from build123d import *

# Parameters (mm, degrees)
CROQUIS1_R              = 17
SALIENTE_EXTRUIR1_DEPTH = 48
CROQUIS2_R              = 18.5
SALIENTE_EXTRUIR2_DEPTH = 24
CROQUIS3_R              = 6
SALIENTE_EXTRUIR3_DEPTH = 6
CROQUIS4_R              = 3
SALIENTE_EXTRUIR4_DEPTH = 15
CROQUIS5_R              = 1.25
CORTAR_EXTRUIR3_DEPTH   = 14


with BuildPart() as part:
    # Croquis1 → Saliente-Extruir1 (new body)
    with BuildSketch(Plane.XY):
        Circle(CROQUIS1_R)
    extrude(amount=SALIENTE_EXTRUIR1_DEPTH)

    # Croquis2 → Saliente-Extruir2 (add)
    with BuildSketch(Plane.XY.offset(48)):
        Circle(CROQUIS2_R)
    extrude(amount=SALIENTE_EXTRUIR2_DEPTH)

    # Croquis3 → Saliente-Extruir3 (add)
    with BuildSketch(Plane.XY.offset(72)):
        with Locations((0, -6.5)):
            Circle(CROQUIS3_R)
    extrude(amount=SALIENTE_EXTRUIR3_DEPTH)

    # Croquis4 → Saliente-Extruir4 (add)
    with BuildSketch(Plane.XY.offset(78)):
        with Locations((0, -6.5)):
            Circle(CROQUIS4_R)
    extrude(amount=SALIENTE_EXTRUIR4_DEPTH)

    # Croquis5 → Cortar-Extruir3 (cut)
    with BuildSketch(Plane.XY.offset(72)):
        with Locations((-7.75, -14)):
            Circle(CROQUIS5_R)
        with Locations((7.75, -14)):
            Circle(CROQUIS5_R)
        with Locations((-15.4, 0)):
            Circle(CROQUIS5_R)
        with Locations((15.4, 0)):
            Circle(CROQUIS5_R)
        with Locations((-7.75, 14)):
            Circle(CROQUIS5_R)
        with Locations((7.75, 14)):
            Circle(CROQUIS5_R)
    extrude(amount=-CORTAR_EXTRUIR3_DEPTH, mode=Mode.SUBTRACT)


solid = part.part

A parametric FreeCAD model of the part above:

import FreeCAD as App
import Part
import Sketcher

V = App.Vector
Q = App.Units.Quantity

doc = App.newDocument("Part")
params = doc.addObject("Spreadsheet::Sheet", "Params")
for row, (alias, value) in enumerate([
    ("sketch1_diameter", "34 mm"),
    ("pad1_length", "48 mm"),
    ("sketch2_diameter", "37 mm"),
    ("pad2_length", "24 mm"),
    ("sketch3_diameter", "12 mm"),
    ("pad3_length", "6 mm"),
    ("sketch4_diameter", "6 mm"),
    ("pad4_length", "15 mm"),
    ("sketch5_diameter", "2.5 mm"),
    ("pocket1_length", "14 mm"),
], start=1):
    params.set(f"A{row}", alias)
    params.set(f"B{row}", "=" + value)
    params.setAlias(f"B{row}", alias)

body = doc.addObject("PartDesign::Body", "Body")

sketch1 = doc.addObject("Sketcher::SketchObject", "Sketch")
body.addObject(sketch1)
sketch1.AttachmentSupport = (doc.XY_Plane, [""])
sketch1.MapMode = "FlatFace"
sketch1.addGeometry(Part.Circle(V(0, 0, 0), V(0, 0, 1), 17), False)
sketch1.addConstraint(Sketcher.Constraint("Coincident", 0, 3, -1, 1))
sketch1.addConstraint(Sketcher.Constraint("Diameter", 0, Q("34 mm")))
sketch1.setExpression("Constraints[1]", "Params.sketch1_diameter")
pad1 = doc.addObject("PartDesign::Pad", "Pad")
body.addObject(pad1)
pad1.Profile = sketch1
pad1.setExpression("Length", "Params.pad1_length")

sketch2 = doc.addObject("Sketcher::SketchObject", "Sketch001")
body.addObject(sketch2)
sketch2.AttachmentSupport = (doc.XY_Plane, [""])
sketch2.MapMode = "FlatFace"
sketch2.AttachmentOffset = App.Placement(V(0, 0, 48), App.Rotation())
sketch2.addGeometry(Part.Circle(V(0, 0, 0), V(0, 0, 1), 18), False)
sketch2.addConstraint(Sketcher.Constraint("Coincident", 0, 3, -1, 1))
sketch2.addConstraint(Sketcher.Constraint("Diameter", 0, Q("37 mm")))
sketch2.setExpression("Constraints[1]", "Params.sketch2_diameter")
pad2 = doc.addObject("PartDesign::Pad", "Pad001")
body.addObject(pad2)
pad2.Profile = sketch2
pad2.setExpression("Length", "Params.pad2_length")

sketch3 = doc.addObject("Sketcher::SketchObject", "Sketch002")
body.addObject(sketch3)
sketch3.AttachmentSupport = (doc.XY_Plane, [""])
sketch3.MapMode = "FlatFace"
sketch3.AttachmentOffset = App.Placement(V(0, 0, 72), App.Rotation())
sketch3.addGeometry(Part.Circle(V(0, -6, 0), V(0, 0, 1), 6), False)
sketch3.addConstraint(Sketcher.Constraint("PointOnObject", 0, 3, -2))
sketch3.addConstraint(Sketcher.Constraint("Diameter", 0, Q("12 mm")))
sketch3.addConstraint(Sketcher.Constraint("DistanceY", 0, 3, -1, 1, Q("6.5 mm")))
sketch3.setExpression("Constraints[1]", "Params.sketch3_diameter")
pad3 = doc.addObject("PartDesign::Pad", "Pad002")
body.addObject(pad3)
pad3.Profile = sketch3
pad3.setExpression("Length", "Params.pad3_length")

sketch4 = doc.addObject("Sketcher::SketchObject", "Sketch003")
body.addObject(sketch4)
sketch4.AttachmentSupport = (doc.XY_Plane, [""])
sketch4.MapMode = "FlatFace"
sketch4.AttachmentOffset = App.Placement(V(0, 0, 78), App.Rotation())
sketch4.addGeometry(Part.Circle(V(0, -6.5, 0), V(0, 0, 1), 3), False)
sketch4.addConstraint(Sketcher.Constraint("PointOnObject", 0, 3, -2))
sketch4.addConstraint(Sketcher.Constraint("Diameter", 0, Q("6 mm")))
sketch4.addConstraint(Sketcher.Constraint("DistanceY", 0, 3, -1, 1, Q("6.5 mm")))
sketch4.setExpression("Constraints[1]", "Params.sketch4_diameter")
pad4 = doc.addObject("PartDesign::Pad", "Pad003")
body.addObject(pad4)
pad4.Profile = sketch4
pad4.setExpression("Length", "Params.pad4_length")

sketch5 = doc.addObject("Sketcher::SketchObject", "Sketch004")
body.addObject(sketch5)
sketch5.AttachmentSupport = (doc.XY_Plane, [""])
sketch5.MapMode = "FlatFace"
sketch5.AttachmentOffset = App.Placement(V(0, 0, 72), App.Rotation())
sketch5.addGeometry(Part.Circle(V(-7.8, -14, 0), V(0, 0, 1), 1.2), False)
sketch5.addGeometry(Part.Circle(V(7.8, -14, 0), V(0, 0, 1), 1.2), False)
sketch5.addGeometry(Part.Circle(V(-15.4, 0, 0), V(0, 0, 1), 1.2), False)
sketch5.addGeometry(Part.Circle(V(15.4, 0, 0), V(0, 0, 1), 1.2), False)
sketch5.addGeometry(Part.Circle(V(-7.8, 14, 0), V(0, 0, 1), 1.2), False)
sketch5.addGeometry(Part.Circle(V(7.8, 14, 0), V(0, 0, 1), 1.2), False)
sketch5.addConstraint(Sketcher.Constraint("Equal", 0, 1))
sketch5.addConstraint(Sketcher.Constraint("Equal", 1, 2))
sketch5.addConstraint(Sketcher.Constraint("Equal", 2, 3))
sketch5.addConstraint(Sketcher.Constraint("Equal", 3, 4))
sketch5.addConstraint(Sketcher.Constraint("Equal", 4, 5))
sketch5.addConstraint(Sketcher.Constraint("Symmetric", 2, 3, 3, 3, -1, 1))
sketch5.addConstraint(Sketcher.Constraint("Symmetric", 1, 3, 4, 3, -1, 1))
sketch5.addConstraint(Sketcher.Constraint("Symmetric", 0, 3, 5, 3, -1, 1))
sketch5.addConstraint(Sketcher.Constraint("Symmetric", 0, 3, 1, 3, -2))
sketch5.addConstraint(Sketcher.Constraint("PointOnObject", 2, 3, -1))
sketch5.addConstraint(Sketcher.Constraint("Diameter", 0, Q("2.5 mm")))
sketch5.addConstraint(Sketcher.Constraint("DistanceY", 0, 3, -1, 1, Q("14 mm")))
sketch5.addConstraint(Sketcher.Constraint("DistanceX", 2, 3, -1, 1, Q("15.4 mm")))
sketch5.addConstraint(Sketcher.Constraint("DistanceX", 0, 3, 1, 3, Q("15.5 mm")))
sketch5.setExpression("Constraints[10]", "Params.sketch5_diameter")
pocket1 = doc.addObject("PartDesign::Pocket", "Pocket")
body.addObject(pocket1)
pocket1.Profile = sketch5
pocket1.setExpression("Length", "Params.pocket1_length")

doc.recompute()
